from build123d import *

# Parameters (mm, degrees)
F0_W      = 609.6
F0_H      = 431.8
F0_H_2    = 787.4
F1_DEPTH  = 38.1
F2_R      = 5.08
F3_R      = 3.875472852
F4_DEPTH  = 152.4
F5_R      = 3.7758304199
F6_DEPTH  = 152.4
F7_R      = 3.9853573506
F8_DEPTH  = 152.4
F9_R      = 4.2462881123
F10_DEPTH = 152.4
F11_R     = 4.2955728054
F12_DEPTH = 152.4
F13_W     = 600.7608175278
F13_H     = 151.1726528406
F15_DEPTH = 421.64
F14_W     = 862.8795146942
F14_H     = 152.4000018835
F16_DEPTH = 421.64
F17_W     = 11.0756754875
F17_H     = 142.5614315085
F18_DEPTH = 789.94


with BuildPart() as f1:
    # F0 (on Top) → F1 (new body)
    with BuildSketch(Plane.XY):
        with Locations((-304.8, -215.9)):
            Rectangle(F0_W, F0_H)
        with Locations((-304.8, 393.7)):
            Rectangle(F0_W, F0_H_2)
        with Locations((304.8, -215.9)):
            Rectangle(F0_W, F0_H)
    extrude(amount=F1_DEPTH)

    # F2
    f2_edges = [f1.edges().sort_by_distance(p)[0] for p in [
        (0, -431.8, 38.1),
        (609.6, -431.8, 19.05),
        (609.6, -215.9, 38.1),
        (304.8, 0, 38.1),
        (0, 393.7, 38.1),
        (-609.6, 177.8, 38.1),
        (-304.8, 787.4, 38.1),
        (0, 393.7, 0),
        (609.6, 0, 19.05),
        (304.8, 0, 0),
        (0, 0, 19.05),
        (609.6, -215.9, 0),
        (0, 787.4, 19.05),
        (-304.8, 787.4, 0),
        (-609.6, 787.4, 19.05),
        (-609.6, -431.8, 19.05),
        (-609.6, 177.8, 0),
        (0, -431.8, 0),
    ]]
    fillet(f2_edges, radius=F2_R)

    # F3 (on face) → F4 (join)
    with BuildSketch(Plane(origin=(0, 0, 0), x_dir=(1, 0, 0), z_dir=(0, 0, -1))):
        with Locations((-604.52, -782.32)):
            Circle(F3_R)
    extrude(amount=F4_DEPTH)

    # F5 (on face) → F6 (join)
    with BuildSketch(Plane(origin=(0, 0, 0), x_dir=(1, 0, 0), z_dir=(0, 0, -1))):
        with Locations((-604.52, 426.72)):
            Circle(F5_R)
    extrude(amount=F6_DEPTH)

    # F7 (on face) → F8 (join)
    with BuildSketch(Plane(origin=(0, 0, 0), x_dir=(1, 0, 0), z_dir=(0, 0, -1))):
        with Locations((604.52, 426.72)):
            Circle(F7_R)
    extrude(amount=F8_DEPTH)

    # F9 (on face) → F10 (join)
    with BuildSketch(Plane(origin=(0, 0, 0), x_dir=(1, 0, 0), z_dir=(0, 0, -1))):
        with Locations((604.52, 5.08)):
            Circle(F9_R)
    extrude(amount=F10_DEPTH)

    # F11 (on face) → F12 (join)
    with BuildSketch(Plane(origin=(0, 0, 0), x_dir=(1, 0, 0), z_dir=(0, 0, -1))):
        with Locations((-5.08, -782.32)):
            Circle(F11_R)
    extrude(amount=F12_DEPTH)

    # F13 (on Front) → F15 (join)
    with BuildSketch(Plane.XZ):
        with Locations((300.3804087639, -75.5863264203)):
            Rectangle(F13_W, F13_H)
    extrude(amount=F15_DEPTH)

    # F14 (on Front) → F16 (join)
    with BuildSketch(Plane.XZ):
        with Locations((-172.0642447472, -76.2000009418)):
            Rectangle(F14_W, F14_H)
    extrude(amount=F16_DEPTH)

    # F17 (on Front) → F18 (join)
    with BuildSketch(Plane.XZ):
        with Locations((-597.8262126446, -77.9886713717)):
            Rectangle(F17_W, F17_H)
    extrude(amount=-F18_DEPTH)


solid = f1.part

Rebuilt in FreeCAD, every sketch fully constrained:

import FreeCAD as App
import Part
import Sketcher

V = App.Vector
Q = App.Units.Quantity

doc = App.newDocument("Part")
body = doc.addObject("PartDesign::Body", "Body")

# Sketch on XY plane
sketch1 = body.newObject("Sketcher::SketchObject", "Sketch")
sketch1.AttachmentSupport = (doc.getObject("XY_Plane"), [""])
sketch1.MapMode = "FlatFace"
sketch1.addGeometry([
    Part.LineSegment(V(-610, -432, 0), V(610, -432, 0)),  # 0
    Part.LineSegment(V(610, -432, 0), V(610, 0, 0)),  # 1
    Part.LineSegment(V(610, 0, 0), V(0, 0, 0)),  # 2
    Part.LineSegment(V(0, 0, 0), V(0, 787, 0)),  # 3
    Part.LineSegment(V(0, 787, 0), V(-610, 787, 0)),  # 4
    Part.LineSegment(V(-610, 787, 0), V(-610, -432, 0)),  # 5
], False)
sketch1.addConstraint([
    Sketcher.Constraint("Coincident", 0, 2, 1, 1),
    Sketcher.Constraint("Coincident", 1, 2, 2, 1),
    Sketcher.Constraint("Coincident", 2, 2, 3, 1),
    Sketcher.Constraint("Coincident", 3, 2, 4, 1),
    Sketcher.Constraint("Coincident", 4, 2, 5, 1),
    Sketcher.Constraint("Coincident", 5, 2, 0, 1),
    Sketcher.Constraint("Horizontal", 0),
    Sketcher.Constraint("Vertical", 1),
    Sketcher.Constraint("Horizontal", 2),
    Sketcher.Constraint("Vertical", 3),
    Sketcher.Constraint("Horizontal", 4),
    Sketcher.Constraint("Vertical", 5),
    Sketcher.Constraint("Coincident", 2, 2, -1, 1),
    Sketcher.Constraint("Equal", 2, 4),
    Sketcher.Constraint("Equal", 0, 5),
    Sketcher.Constraint("DistanceX", 0, 1, 0, 2, Q("48 in")),
    Sketcher.Constraint("DistanceY", 1, 1, 1, 2, Q("17 in")),
])
pad1 = body.newObject("PartDesign::Pad", "Pad")
pad1.Profile = sketch1
pad1.Length = Q("1.5 in")
doc.recompute()

fillet = body.newObject("PartDesign::Fillet", "Fillet")
fillet.Base = (pad1, ["Edge1"])
fillet.UseAllEdges = True
fillet.Radius = Q("0.2 in")

# Sketch on XY plane
sketch2 = body.newObject("Sketcher::SketchObject", "Sketch001")
sketch2.AttachmentSupport = (doc.getObject("XY_Plane"), [""])
sketch2.MapMode = "FlatFace"
sketch2.addGeometry(Part.Circle(V(-604.5, 782.3, 0), V(0, 0, 1), 3.9), False)
sketch2.addConstraint([
    Sketcher.Constraint("DistanceX", 0, 3, -1, 1, Q("23.8 in")),
    Sketcher.Constraint("DistanceY", -1, 1, 0, 3, Q("30.8 in")),
    Sketcher.Constraint("Diameter", 0, 7.750946),
])
pad2 = body.newObject("PartDesign::Pad", "Pad001")
pad2.Profile = sketch2
pad2.Length = Q("6 in")
pad2.Reversed = True

# Sketch on XY plane
sketch3 = body.newObject("Sketcher::SketchObject", "Sketch002")
sketch3.AttachmentSupport = (doc.getObject("XY_Plane"), [""])
sketch3.MapMode = "FlatFace"
sketch3.addGeometry(Part.Circle(V(-604.5, -426.7, 0), V(0, 0, 1), 3.8), False)
sketch3.addConstraint([
    Sketcher.Constraint("DistanceX", 0, 3, -1, 1, Q("23.8 in")),
    Sketcher.Constraint("DistanceY", 0, 3, -1, 1, Q("16.8 in")),
    Sketcher.Constraint("Diameter", 0, 7.551661),
])
pad3 = body.newObject("PartDesign::Pad", "Pad002")
pad3.Profile = sketch3
pad3.Length = Q("6 in")
pad3.Reversed = True

# Sketch on XY plane
sketch4 = body.newObject("Sketcher::SketchObject", "Sketch003")
sketch4.AttachmentSupport = (doc.getObject("XY_Plane"), [""])
sketch4.MapMode = "FlatFace"
sketch4.addGeometry(Part.Circle(V(604.5, -426.7, 0), V(0, 0, 1), 4), False)
sketch4.addConstraint([
    Sketcher.Constraint("DistanceX", -1, 1, 0, 3, Q("23.8 in")),
    Sketcher.Constraint("DistanceY", 0, 3, -1, 1, Q("16.8 in")),
    Sketcher.Constraint("Diameter", 0, 7.970715),
])
pad4 = body.newObject("PartDesign::Pad", "Pad003")
pad4.Profile = sketch4
pad4.Length = Q("6 in")
pad4.Reversed = True

# Sketch on XY plane
sketch5 = body.newObject("Sketcher::SketchObject", "Sketch004")
sketch5.AttachmentSupport = (doc.getObject("XY_Plane"), [""])
sketch5.MapMode = "FlatFace"
sketch5.addGeometry(Part.Circle(V(604.5, -5.1, 0), V(0, 0, 1), 4.2), False)
sketch5.addConstraint([
    Sketcher.Constraint("DistanceX", -1, 1, 0, 3, Q("23.8 in")),
    Sketcher.Constraint("DistanceY", 0, 3, -1, 1, Q("0.2 in")),
    Sketcher.Constraint("Diameter", 0, 8.492576),
])
pad5 = body.newObject("PartDesign::Pad", "Pad004")
pad5.Profile = sketch5
pad5.Length = Q("6 in")
pad5.Reversed = True

# Sketch on XY plane
sketch6 = body.newObject("Sketcher::SketchObject", "Sketch005")
sketch6.AttachmentSupport = (doc.getObject("XY_Plane"), [""])
sketch6.MapMode = "FlatFace"
sketch6.addGeometry(Part.Circle(V(-5.1, 782.3, 0), V(0, 0, 1), 4.3), False)
sketch6.addConstraint([
    Sketcher.Constraint("DistanceX", 0, 3, -1, 1, Q("0.2 in")),
    Sketcher.Constraint("DistanceY", -1, 1, 0, 3, Q("30.8 in")),
    Sketcher.Constraint("Diameter", 0, 8.591146),
])
pad6 = body.newObject("PartDesign::Pad", "Pad005")
pad6.Profile = sketch6
pad6.Length = Q("6 in")
pad6.Reversed = True

# Sketch on XZ plane
sketch7 = body.newObject("Sketcher::SketchObject", "Sketch006")
sketch7.AttachmentSupport = (doc.getObject("XZ_Plane"), [""])
sketch7.MapMode = "FlatFace"
sketch7.addGeometry([
    Part.LineSegment(V(0, 0, 0), V(0, -151, 0)),
    Part.LineSegment(V(0, -151, 0), V(601, -151, 0)),
    Part.LineSegment(V(601, -151, 0), V(601, 0, 0)),
    Part.LineSegment(V(601, 0, 0), V(0, 0, 0)),
], False)
sketch7.addConstraint([
    Sketcher.Constraint("Coincident", 0, 2, 1, 1),
    Sketcher.Constraint("Coincident", 1, 2, 2, 1),
    Sketcher.Constraint("Coincident", 2, 2, 3, 1),
    Sketcher.Constraint("Coincident", 3, 2, 0, 1),
    Sketcher.Constraint("Vertical", 0),
    Sketcher.Constraint("Horizontal", 1),
    Sketcher.Constraint("Vertical", 2),
    Sketcher.Constraint("Horizontal", 3),
    Sketcher.Constraint("Coincident", 3, 2, -1, 1),
    Sketcher.Constraint("DistanceX", 1, 1, 1, 2, 600.760818),
    Sketcher.Constraint("DistanceY", 0, 2, 0, 1, 151.172653),
])
pad7 = body.newObject("PartDesign::Pad", "Pad006")
pad7.Profile = sketch7
pad7.Length = Q("16.6 in")

# Sketch on XZ plane
sketch8 = body.newObject("Sketcher::SketchObject", "Sketch007")
sketch8.AttachmentSupport = (doc.getObject("XZ_Plane"), [""])
sketch8.MapMode = "FlatFace"
sketch8.addGeometry([
    Part.LineSegment(V(-604, 0, 0), V(-604, -152, 0)),
    Part.LineSegment(V(-604, -152, 0), V(259, -152, 0)),
    Part.LineSegment(V(259, -152, 0), V(259, 0, 0)),
    Part.LineSegment(V(259, 0, 0), V(-604, 0, 0)),
], False)
sketch8.addConstraint([
    Sketcher.Constraint("Coincident", 0, 2, 1, 1),
    Sketcher.Constraint("Coincident", 1, 2, 2, 1),
    Sketcher.Constraint("Coincident", 2, 2, 3, 1),
    Sketcher.Constraint("Coincident", 3, 2, 0, 1),
    Sketcher.Constraint("Vertical", 0),
    Sketcher.Constraint("Horizontal", 1),
    Sketcher.Constraint("Vertical", 2),
    Sketcher.Constraint("Horizontal", 3),
    Sketcher.Constraint("PointOnObject", 2, 2, -1),
    Sketcher.Constraint("DistanceY", 0, 2, 0, 1, Q("6.0000001 in")),
    Sketcher.Constraint("DistanceX", 0, 2, -1, 1, Q("23.7600001 in")),
    Sketcher.Constraint("DistanceX", 1, 1, 1, 2, 862.879515),
])
pad8 = body.newObject("PartDesign::Pad", "Pad007")
pad8.Profile = sketch8
pad8.Length = Q("16.6 in")

# Sketch on XZ plane
sketch9 = body.newObject("Sketcher::SketchObject", "Sketch008")
sketch9.AttachmentSupport = (doc.getObject("XZ_Plane"), [""])
sketch9.MapMode = "FlatFace"
sketch9.addGeometry([
    Part.LineSegment(V(-603, -7, 0), V(-603, -149, 0)),
    Part.LineSegment(V(-603, -149, 0), V(-592, -149, 0)),
    Part.LineSegment(V(-592, -149, 0), V(-592, -7, 0)),
    Part.LineSegment(V(-592, -7, 0), V(-603, -7, 0)),
], False)
sketch9.addConstraint([
    Sketcher.Constraint("Coincident", 0, 2, 1, 1),
    Sketcher.Constraint("Coincident", 1, 2, 2, 1),
    Sketcher.Constraint("Coincident", 2, 2, 3, 1),
    Sketcher.Constraint("Coincident", 3, 2, 0, 1),
    Sketcher.Constraint("Vertical", 0),
    Sketcher.Constraint("Horizontal", 1),
    Sketcher.Constraint("Vertical", 2),
    Sketcher.Constraint("Horizontal", 3),
    Sketcher.Constraint("DistanceY", 0, 2, 0, 1, 142.561432),
    Sketcher.Constraint("DistanceX", 1, 1, 1, 2, 11.075675),
    Sketcher.Constraint("DistanceX", 0, 2, -1, 1, 603.36405),
    Sketcher.Constraint("DistanceY", 0, 2, -1, 1, 149.269387),
])
pad9 = body.newObject("PartDesign::Pad", "Pad008")
pad9.Profile = sketch9
pad9.Length = Q("31.1 in")
pad9.Reversed = True

doc.recompute()
